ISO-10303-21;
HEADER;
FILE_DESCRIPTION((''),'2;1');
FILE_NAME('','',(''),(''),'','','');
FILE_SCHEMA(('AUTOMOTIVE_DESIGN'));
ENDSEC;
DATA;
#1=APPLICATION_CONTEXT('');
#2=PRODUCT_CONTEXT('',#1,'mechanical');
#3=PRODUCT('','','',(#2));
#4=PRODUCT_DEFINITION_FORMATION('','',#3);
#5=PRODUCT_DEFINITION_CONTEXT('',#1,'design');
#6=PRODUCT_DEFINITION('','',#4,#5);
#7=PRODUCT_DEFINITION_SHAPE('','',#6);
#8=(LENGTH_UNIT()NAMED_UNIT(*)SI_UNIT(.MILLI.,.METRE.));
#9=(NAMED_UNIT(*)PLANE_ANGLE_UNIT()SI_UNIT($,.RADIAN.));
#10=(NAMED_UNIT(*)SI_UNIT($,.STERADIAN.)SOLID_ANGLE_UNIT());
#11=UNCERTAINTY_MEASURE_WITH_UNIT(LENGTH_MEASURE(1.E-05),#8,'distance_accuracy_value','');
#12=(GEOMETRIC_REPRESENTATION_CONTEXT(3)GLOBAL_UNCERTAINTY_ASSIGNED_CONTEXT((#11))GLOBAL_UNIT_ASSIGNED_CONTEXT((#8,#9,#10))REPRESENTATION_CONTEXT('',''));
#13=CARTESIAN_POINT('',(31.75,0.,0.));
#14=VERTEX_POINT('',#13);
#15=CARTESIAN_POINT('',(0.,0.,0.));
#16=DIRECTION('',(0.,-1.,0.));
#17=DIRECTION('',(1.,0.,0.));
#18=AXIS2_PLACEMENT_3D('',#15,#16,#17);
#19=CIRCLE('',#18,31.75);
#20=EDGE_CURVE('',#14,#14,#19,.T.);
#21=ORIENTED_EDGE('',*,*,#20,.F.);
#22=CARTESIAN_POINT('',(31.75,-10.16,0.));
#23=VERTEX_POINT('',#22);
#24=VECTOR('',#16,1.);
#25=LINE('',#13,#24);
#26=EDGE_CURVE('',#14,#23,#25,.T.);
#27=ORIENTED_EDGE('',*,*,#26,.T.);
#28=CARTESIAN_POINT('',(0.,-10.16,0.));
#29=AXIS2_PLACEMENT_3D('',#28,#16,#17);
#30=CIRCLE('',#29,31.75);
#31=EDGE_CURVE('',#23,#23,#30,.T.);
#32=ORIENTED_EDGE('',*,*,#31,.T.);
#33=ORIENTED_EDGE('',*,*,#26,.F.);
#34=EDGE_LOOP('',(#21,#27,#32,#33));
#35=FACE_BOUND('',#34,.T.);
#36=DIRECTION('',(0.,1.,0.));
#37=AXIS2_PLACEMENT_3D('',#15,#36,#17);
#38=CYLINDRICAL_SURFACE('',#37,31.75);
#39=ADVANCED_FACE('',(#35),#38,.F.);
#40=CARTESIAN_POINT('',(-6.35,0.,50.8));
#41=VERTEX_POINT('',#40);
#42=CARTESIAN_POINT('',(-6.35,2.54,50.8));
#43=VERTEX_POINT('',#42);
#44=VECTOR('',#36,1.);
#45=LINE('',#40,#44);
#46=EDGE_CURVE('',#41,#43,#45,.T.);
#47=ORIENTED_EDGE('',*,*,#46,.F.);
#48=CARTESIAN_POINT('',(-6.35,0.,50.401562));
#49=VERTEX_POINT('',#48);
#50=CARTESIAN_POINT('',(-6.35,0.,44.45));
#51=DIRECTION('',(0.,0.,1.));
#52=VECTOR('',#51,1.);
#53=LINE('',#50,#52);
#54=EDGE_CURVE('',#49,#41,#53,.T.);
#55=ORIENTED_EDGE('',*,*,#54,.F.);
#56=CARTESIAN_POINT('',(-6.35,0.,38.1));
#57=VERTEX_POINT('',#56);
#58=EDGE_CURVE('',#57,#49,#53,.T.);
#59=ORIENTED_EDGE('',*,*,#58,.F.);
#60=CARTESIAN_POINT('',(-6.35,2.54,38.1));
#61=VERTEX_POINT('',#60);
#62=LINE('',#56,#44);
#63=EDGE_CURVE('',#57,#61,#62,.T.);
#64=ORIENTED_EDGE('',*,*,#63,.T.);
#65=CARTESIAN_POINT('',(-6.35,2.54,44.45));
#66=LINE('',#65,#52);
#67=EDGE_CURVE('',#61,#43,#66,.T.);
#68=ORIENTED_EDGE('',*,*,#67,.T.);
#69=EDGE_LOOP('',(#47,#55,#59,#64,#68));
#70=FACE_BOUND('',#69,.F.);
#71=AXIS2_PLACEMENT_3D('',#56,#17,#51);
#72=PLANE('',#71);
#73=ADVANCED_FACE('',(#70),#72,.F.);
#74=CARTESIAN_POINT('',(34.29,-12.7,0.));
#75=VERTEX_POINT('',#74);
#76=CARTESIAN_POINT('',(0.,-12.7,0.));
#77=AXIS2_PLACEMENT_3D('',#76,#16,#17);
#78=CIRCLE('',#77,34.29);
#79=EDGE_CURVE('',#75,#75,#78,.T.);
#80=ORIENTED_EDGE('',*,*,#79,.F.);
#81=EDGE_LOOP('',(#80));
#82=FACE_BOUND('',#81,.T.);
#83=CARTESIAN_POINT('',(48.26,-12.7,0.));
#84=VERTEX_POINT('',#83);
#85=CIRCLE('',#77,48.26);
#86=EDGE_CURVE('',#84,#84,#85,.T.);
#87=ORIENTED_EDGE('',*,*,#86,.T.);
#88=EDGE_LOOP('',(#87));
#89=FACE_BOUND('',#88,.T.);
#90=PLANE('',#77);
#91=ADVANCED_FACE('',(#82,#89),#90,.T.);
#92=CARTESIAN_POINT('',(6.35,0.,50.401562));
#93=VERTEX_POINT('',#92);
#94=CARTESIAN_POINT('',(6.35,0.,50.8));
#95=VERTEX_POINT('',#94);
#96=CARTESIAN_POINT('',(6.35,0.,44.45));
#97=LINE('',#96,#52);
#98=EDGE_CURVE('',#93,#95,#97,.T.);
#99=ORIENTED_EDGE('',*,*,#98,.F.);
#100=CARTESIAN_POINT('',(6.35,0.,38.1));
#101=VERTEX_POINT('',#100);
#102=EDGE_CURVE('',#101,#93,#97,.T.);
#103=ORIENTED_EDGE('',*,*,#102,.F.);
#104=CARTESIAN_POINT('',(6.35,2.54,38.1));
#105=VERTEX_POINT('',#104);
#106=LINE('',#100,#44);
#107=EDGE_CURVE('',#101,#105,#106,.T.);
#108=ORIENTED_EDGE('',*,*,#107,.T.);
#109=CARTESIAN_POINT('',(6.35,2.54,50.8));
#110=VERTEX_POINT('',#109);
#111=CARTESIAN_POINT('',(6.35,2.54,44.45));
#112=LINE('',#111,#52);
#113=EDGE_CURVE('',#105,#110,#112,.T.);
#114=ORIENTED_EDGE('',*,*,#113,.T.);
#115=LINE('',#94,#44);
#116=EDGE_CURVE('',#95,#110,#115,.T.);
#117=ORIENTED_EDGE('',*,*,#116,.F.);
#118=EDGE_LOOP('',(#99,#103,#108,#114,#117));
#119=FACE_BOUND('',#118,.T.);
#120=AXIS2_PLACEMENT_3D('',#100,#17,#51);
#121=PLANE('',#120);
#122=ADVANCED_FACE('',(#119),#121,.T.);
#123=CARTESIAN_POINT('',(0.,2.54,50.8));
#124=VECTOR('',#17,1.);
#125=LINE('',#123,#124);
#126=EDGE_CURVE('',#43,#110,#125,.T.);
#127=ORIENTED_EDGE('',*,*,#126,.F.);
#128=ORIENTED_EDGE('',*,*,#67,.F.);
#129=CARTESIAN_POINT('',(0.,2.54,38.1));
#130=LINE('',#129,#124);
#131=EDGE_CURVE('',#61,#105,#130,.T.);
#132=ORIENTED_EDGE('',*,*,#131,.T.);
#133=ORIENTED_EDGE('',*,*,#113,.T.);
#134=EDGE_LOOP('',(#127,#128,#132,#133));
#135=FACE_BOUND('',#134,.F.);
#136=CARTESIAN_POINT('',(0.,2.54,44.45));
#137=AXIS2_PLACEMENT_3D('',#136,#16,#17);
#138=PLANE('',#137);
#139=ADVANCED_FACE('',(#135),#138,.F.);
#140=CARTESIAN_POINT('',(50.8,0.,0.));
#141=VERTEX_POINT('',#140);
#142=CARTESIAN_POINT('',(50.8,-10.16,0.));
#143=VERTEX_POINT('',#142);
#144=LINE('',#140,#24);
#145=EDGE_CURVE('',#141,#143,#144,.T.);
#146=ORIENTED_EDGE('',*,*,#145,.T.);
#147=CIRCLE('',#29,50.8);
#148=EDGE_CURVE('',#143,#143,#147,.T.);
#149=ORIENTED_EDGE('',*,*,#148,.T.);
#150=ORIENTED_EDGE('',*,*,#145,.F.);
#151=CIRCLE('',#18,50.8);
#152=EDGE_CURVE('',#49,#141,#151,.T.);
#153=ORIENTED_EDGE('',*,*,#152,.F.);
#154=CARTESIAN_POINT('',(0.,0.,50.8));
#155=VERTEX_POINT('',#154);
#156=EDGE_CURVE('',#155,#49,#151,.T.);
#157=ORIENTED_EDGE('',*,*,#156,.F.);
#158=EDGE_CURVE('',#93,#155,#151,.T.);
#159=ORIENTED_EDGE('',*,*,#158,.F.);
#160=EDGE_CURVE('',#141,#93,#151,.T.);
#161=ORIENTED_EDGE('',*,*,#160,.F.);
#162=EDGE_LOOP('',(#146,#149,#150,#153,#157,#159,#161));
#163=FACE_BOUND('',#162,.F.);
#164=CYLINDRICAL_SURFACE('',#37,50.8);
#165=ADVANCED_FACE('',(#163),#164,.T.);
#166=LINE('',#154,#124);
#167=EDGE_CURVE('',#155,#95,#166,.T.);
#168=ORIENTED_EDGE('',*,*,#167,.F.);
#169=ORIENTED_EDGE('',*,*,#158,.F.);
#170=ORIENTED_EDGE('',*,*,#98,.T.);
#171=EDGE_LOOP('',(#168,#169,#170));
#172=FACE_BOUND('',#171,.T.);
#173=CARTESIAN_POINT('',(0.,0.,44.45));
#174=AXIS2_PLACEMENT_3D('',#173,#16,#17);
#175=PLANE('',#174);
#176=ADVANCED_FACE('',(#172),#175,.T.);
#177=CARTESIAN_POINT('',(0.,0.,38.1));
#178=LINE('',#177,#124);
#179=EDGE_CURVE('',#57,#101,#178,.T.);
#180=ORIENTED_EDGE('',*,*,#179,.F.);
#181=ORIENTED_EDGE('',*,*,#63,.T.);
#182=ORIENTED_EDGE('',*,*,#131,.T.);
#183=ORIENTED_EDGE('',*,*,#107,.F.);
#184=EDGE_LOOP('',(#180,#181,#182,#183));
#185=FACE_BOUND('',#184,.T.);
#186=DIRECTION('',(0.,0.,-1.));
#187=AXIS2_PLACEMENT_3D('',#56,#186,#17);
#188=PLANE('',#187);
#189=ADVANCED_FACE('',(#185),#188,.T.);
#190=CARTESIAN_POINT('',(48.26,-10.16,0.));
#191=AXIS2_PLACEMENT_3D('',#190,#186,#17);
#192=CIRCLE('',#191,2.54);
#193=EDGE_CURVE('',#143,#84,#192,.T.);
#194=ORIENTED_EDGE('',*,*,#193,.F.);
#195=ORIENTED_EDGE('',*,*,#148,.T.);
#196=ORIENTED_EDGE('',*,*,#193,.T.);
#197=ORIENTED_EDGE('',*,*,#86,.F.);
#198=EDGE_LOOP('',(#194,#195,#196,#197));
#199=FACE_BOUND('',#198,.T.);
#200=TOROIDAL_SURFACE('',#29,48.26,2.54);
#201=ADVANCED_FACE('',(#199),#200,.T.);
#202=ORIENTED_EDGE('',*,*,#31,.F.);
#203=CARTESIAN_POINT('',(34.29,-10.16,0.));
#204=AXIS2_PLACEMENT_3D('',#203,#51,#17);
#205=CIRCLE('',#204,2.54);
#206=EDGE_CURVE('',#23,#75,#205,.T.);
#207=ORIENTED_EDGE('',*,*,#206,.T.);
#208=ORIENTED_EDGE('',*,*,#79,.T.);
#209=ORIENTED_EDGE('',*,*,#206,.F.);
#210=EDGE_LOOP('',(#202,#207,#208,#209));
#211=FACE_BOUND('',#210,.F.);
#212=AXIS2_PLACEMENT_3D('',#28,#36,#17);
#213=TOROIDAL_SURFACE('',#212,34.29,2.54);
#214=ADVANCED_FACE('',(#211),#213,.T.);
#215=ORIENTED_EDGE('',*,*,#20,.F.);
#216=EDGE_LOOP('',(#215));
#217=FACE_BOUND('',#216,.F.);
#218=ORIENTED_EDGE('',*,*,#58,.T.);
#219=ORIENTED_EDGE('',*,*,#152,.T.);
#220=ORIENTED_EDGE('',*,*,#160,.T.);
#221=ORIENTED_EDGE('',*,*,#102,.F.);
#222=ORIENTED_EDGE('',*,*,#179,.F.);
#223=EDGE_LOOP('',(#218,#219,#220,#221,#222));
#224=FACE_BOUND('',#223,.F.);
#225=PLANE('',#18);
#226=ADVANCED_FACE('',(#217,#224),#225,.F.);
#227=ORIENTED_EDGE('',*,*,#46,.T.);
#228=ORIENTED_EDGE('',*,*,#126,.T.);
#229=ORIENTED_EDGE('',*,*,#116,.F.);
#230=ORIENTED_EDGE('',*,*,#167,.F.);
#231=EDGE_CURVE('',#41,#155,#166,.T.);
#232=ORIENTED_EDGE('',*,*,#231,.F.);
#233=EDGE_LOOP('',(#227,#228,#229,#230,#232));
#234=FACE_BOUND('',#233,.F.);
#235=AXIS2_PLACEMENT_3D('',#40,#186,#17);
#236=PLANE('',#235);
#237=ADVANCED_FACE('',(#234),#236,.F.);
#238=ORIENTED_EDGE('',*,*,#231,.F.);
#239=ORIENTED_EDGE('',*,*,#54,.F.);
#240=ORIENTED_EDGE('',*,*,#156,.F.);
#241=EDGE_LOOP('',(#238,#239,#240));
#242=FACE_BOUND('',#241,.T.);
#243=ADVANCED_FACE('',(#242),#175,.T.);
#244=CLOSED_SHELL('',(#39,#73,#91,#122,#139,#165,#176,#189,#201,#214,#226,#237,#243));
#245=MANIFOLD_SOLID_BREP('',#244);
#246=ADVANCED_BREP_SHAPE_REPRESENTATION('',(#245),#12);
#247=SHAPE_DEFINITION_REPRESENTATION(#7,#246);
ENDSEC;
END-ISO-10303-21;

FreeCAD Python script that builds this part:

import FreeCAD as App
import Part
import Sketcher
Q = App.Units.Quantity


def edges_at(feature, points):
    """Names of the edges that pass closest to the given points."""
    edges = feature.Shape.Edges
    near = lambda p: min(range(len(edges)), key=lambda i: edges[i].distToShape(Part.Vertex(*p))[0])
    return sorted({f"Edge{near(p) + 1}" for p in points})

doc = App.newDocument("Part")
params = doc.addObject("Spreadsheet::Sheet", "Params")
for row, (alias, value) in enumerate([
    ("sketch1_diameter", "4 in"),
    ("sketch1_diameter2", "2.5 in"),
    ("pad1_length", "0.5 in"),
    ("fillet_radius", "0.1 in"),
    ("sketch2_width", "0.5 in"),
    ("pad2_length", "0.1 in"),
], start=1):
    params.set(f"A{row}", alias)
    params.set(f"B{row}", "=" + value)
    params.setAlias(f"B{row}", alias)

body = doc.addObject("PartDesign::Body", "Body")

# Sketch on XZ plane
sketch1 = body.newObject("Sketcher::SketchObject", "Sketch")
sketch1.AttachmentSupport = (doc.getObject("XZ_Plane"), [""])
sketch1.MapMode = "FlatFace"
sketch1.addGeometry([
    Part.Circle(App.Vector(0, 0, 0), App.Vector(0, 0, 1), 51),
    Part.Circle(App.Vector(0, 0, 0), App.Vector(0, 0, 1), 32),
], False)
sketch1.addConstraint([
    Sketcher.Constraint("Coincident", 0, 3, -1, 1),
    Sketcher.Constraint("Coincident", 1, 3, -1, 1),
    Sketcher.Constraint("Diameter", 0, Q("4 in")),
    Sketcher.Constraint("Diameter", 1, Q("2.5 in")),
])
sketch1.setExpression("Constraints[2]", "Params.sketch1_diameter")
sketch1.setExpression("Constraints[3]", "Params.sketch1_diameter2")
pad1 = body.newObject("PartDesign::Pad", "Pad")
pad1.Profile = sketch1
pad1.setExpression("Length", "Params.pad1_length")
doc.recompute()

fillet = body.newObject("PartDesign::Fillet", "Fillet")
fillet.Base = (pad1, edges_at(pad1, [(-50.8, -12.7, 0), (-31.75, -12.7, 0)]))
fillet.setExpression("Radius", "Params.fillet_radius")

# Sketch on XZ plane
sketch2 = body.newObject("Sketcher::SketchObject", "Sketch001")
sketch2.AttachmentSupport = (doc.getObject("XZ_Plane"), [""])
sketch2.MapMode = "FlatFace"
sketch2.addGeometry([
    Part.LineSegment(App.Vector(-6, 51, 0), App.Vector(-6, 38, 0)),
    Part.LineSegment(App.Vector(-6, 38, 0), App.Vector(6, 38, 0)),
    Part.LineSegment(App.Vector(6, 38, 0), App.Vector(6, 51, 0)),
    Part.LineSegment(App.Vector(6, 51, 0), App.Vector(-6, 51, 0)),
], False)
sketch2.addConstraint([
    Sketcher.Constraint("Coincident", 0, 2, 1, 1),
    Sketcher.Constraint("Coincident", 1, 2, 2, 1),
    Sketcher.Constraint("Coincident", 2, 2, 3, 1),
    Sketcher.Constraint("Coincident", 3, 2, 0, 1),
    Sketcher.Constraint("Vertical", 0),
    Sketcher.Constraint("Horizontal", 1),
    Sketcher.Constraint("Vertical", 2),
    Sketcher.Constraint("Horizontal", 3),
    Sketcher.Constraint("Equal", 3, 0),
    Sketcher.Constraint("DistanceX", 1, 1, 1, 2, Q("0.5 in")),
    Sketcher.Constraint("DistanceY", -1, 1, 2, 2, Q("2 in")),
    Sketcher.Constraint("DistanceX", 0, 2, -1, 1, Q("0.25 in")),
])
sketch2.setExpression("Constraints[9]", "Params.sketch2_width")
pad2 = body.newObject("PartDesign::Pad", "Pad001")
pad2.Profile = sketch2
pad2.setExpression("Length", "Params.pad2_length")
pad2.Reversed = True

doc.recompute()
